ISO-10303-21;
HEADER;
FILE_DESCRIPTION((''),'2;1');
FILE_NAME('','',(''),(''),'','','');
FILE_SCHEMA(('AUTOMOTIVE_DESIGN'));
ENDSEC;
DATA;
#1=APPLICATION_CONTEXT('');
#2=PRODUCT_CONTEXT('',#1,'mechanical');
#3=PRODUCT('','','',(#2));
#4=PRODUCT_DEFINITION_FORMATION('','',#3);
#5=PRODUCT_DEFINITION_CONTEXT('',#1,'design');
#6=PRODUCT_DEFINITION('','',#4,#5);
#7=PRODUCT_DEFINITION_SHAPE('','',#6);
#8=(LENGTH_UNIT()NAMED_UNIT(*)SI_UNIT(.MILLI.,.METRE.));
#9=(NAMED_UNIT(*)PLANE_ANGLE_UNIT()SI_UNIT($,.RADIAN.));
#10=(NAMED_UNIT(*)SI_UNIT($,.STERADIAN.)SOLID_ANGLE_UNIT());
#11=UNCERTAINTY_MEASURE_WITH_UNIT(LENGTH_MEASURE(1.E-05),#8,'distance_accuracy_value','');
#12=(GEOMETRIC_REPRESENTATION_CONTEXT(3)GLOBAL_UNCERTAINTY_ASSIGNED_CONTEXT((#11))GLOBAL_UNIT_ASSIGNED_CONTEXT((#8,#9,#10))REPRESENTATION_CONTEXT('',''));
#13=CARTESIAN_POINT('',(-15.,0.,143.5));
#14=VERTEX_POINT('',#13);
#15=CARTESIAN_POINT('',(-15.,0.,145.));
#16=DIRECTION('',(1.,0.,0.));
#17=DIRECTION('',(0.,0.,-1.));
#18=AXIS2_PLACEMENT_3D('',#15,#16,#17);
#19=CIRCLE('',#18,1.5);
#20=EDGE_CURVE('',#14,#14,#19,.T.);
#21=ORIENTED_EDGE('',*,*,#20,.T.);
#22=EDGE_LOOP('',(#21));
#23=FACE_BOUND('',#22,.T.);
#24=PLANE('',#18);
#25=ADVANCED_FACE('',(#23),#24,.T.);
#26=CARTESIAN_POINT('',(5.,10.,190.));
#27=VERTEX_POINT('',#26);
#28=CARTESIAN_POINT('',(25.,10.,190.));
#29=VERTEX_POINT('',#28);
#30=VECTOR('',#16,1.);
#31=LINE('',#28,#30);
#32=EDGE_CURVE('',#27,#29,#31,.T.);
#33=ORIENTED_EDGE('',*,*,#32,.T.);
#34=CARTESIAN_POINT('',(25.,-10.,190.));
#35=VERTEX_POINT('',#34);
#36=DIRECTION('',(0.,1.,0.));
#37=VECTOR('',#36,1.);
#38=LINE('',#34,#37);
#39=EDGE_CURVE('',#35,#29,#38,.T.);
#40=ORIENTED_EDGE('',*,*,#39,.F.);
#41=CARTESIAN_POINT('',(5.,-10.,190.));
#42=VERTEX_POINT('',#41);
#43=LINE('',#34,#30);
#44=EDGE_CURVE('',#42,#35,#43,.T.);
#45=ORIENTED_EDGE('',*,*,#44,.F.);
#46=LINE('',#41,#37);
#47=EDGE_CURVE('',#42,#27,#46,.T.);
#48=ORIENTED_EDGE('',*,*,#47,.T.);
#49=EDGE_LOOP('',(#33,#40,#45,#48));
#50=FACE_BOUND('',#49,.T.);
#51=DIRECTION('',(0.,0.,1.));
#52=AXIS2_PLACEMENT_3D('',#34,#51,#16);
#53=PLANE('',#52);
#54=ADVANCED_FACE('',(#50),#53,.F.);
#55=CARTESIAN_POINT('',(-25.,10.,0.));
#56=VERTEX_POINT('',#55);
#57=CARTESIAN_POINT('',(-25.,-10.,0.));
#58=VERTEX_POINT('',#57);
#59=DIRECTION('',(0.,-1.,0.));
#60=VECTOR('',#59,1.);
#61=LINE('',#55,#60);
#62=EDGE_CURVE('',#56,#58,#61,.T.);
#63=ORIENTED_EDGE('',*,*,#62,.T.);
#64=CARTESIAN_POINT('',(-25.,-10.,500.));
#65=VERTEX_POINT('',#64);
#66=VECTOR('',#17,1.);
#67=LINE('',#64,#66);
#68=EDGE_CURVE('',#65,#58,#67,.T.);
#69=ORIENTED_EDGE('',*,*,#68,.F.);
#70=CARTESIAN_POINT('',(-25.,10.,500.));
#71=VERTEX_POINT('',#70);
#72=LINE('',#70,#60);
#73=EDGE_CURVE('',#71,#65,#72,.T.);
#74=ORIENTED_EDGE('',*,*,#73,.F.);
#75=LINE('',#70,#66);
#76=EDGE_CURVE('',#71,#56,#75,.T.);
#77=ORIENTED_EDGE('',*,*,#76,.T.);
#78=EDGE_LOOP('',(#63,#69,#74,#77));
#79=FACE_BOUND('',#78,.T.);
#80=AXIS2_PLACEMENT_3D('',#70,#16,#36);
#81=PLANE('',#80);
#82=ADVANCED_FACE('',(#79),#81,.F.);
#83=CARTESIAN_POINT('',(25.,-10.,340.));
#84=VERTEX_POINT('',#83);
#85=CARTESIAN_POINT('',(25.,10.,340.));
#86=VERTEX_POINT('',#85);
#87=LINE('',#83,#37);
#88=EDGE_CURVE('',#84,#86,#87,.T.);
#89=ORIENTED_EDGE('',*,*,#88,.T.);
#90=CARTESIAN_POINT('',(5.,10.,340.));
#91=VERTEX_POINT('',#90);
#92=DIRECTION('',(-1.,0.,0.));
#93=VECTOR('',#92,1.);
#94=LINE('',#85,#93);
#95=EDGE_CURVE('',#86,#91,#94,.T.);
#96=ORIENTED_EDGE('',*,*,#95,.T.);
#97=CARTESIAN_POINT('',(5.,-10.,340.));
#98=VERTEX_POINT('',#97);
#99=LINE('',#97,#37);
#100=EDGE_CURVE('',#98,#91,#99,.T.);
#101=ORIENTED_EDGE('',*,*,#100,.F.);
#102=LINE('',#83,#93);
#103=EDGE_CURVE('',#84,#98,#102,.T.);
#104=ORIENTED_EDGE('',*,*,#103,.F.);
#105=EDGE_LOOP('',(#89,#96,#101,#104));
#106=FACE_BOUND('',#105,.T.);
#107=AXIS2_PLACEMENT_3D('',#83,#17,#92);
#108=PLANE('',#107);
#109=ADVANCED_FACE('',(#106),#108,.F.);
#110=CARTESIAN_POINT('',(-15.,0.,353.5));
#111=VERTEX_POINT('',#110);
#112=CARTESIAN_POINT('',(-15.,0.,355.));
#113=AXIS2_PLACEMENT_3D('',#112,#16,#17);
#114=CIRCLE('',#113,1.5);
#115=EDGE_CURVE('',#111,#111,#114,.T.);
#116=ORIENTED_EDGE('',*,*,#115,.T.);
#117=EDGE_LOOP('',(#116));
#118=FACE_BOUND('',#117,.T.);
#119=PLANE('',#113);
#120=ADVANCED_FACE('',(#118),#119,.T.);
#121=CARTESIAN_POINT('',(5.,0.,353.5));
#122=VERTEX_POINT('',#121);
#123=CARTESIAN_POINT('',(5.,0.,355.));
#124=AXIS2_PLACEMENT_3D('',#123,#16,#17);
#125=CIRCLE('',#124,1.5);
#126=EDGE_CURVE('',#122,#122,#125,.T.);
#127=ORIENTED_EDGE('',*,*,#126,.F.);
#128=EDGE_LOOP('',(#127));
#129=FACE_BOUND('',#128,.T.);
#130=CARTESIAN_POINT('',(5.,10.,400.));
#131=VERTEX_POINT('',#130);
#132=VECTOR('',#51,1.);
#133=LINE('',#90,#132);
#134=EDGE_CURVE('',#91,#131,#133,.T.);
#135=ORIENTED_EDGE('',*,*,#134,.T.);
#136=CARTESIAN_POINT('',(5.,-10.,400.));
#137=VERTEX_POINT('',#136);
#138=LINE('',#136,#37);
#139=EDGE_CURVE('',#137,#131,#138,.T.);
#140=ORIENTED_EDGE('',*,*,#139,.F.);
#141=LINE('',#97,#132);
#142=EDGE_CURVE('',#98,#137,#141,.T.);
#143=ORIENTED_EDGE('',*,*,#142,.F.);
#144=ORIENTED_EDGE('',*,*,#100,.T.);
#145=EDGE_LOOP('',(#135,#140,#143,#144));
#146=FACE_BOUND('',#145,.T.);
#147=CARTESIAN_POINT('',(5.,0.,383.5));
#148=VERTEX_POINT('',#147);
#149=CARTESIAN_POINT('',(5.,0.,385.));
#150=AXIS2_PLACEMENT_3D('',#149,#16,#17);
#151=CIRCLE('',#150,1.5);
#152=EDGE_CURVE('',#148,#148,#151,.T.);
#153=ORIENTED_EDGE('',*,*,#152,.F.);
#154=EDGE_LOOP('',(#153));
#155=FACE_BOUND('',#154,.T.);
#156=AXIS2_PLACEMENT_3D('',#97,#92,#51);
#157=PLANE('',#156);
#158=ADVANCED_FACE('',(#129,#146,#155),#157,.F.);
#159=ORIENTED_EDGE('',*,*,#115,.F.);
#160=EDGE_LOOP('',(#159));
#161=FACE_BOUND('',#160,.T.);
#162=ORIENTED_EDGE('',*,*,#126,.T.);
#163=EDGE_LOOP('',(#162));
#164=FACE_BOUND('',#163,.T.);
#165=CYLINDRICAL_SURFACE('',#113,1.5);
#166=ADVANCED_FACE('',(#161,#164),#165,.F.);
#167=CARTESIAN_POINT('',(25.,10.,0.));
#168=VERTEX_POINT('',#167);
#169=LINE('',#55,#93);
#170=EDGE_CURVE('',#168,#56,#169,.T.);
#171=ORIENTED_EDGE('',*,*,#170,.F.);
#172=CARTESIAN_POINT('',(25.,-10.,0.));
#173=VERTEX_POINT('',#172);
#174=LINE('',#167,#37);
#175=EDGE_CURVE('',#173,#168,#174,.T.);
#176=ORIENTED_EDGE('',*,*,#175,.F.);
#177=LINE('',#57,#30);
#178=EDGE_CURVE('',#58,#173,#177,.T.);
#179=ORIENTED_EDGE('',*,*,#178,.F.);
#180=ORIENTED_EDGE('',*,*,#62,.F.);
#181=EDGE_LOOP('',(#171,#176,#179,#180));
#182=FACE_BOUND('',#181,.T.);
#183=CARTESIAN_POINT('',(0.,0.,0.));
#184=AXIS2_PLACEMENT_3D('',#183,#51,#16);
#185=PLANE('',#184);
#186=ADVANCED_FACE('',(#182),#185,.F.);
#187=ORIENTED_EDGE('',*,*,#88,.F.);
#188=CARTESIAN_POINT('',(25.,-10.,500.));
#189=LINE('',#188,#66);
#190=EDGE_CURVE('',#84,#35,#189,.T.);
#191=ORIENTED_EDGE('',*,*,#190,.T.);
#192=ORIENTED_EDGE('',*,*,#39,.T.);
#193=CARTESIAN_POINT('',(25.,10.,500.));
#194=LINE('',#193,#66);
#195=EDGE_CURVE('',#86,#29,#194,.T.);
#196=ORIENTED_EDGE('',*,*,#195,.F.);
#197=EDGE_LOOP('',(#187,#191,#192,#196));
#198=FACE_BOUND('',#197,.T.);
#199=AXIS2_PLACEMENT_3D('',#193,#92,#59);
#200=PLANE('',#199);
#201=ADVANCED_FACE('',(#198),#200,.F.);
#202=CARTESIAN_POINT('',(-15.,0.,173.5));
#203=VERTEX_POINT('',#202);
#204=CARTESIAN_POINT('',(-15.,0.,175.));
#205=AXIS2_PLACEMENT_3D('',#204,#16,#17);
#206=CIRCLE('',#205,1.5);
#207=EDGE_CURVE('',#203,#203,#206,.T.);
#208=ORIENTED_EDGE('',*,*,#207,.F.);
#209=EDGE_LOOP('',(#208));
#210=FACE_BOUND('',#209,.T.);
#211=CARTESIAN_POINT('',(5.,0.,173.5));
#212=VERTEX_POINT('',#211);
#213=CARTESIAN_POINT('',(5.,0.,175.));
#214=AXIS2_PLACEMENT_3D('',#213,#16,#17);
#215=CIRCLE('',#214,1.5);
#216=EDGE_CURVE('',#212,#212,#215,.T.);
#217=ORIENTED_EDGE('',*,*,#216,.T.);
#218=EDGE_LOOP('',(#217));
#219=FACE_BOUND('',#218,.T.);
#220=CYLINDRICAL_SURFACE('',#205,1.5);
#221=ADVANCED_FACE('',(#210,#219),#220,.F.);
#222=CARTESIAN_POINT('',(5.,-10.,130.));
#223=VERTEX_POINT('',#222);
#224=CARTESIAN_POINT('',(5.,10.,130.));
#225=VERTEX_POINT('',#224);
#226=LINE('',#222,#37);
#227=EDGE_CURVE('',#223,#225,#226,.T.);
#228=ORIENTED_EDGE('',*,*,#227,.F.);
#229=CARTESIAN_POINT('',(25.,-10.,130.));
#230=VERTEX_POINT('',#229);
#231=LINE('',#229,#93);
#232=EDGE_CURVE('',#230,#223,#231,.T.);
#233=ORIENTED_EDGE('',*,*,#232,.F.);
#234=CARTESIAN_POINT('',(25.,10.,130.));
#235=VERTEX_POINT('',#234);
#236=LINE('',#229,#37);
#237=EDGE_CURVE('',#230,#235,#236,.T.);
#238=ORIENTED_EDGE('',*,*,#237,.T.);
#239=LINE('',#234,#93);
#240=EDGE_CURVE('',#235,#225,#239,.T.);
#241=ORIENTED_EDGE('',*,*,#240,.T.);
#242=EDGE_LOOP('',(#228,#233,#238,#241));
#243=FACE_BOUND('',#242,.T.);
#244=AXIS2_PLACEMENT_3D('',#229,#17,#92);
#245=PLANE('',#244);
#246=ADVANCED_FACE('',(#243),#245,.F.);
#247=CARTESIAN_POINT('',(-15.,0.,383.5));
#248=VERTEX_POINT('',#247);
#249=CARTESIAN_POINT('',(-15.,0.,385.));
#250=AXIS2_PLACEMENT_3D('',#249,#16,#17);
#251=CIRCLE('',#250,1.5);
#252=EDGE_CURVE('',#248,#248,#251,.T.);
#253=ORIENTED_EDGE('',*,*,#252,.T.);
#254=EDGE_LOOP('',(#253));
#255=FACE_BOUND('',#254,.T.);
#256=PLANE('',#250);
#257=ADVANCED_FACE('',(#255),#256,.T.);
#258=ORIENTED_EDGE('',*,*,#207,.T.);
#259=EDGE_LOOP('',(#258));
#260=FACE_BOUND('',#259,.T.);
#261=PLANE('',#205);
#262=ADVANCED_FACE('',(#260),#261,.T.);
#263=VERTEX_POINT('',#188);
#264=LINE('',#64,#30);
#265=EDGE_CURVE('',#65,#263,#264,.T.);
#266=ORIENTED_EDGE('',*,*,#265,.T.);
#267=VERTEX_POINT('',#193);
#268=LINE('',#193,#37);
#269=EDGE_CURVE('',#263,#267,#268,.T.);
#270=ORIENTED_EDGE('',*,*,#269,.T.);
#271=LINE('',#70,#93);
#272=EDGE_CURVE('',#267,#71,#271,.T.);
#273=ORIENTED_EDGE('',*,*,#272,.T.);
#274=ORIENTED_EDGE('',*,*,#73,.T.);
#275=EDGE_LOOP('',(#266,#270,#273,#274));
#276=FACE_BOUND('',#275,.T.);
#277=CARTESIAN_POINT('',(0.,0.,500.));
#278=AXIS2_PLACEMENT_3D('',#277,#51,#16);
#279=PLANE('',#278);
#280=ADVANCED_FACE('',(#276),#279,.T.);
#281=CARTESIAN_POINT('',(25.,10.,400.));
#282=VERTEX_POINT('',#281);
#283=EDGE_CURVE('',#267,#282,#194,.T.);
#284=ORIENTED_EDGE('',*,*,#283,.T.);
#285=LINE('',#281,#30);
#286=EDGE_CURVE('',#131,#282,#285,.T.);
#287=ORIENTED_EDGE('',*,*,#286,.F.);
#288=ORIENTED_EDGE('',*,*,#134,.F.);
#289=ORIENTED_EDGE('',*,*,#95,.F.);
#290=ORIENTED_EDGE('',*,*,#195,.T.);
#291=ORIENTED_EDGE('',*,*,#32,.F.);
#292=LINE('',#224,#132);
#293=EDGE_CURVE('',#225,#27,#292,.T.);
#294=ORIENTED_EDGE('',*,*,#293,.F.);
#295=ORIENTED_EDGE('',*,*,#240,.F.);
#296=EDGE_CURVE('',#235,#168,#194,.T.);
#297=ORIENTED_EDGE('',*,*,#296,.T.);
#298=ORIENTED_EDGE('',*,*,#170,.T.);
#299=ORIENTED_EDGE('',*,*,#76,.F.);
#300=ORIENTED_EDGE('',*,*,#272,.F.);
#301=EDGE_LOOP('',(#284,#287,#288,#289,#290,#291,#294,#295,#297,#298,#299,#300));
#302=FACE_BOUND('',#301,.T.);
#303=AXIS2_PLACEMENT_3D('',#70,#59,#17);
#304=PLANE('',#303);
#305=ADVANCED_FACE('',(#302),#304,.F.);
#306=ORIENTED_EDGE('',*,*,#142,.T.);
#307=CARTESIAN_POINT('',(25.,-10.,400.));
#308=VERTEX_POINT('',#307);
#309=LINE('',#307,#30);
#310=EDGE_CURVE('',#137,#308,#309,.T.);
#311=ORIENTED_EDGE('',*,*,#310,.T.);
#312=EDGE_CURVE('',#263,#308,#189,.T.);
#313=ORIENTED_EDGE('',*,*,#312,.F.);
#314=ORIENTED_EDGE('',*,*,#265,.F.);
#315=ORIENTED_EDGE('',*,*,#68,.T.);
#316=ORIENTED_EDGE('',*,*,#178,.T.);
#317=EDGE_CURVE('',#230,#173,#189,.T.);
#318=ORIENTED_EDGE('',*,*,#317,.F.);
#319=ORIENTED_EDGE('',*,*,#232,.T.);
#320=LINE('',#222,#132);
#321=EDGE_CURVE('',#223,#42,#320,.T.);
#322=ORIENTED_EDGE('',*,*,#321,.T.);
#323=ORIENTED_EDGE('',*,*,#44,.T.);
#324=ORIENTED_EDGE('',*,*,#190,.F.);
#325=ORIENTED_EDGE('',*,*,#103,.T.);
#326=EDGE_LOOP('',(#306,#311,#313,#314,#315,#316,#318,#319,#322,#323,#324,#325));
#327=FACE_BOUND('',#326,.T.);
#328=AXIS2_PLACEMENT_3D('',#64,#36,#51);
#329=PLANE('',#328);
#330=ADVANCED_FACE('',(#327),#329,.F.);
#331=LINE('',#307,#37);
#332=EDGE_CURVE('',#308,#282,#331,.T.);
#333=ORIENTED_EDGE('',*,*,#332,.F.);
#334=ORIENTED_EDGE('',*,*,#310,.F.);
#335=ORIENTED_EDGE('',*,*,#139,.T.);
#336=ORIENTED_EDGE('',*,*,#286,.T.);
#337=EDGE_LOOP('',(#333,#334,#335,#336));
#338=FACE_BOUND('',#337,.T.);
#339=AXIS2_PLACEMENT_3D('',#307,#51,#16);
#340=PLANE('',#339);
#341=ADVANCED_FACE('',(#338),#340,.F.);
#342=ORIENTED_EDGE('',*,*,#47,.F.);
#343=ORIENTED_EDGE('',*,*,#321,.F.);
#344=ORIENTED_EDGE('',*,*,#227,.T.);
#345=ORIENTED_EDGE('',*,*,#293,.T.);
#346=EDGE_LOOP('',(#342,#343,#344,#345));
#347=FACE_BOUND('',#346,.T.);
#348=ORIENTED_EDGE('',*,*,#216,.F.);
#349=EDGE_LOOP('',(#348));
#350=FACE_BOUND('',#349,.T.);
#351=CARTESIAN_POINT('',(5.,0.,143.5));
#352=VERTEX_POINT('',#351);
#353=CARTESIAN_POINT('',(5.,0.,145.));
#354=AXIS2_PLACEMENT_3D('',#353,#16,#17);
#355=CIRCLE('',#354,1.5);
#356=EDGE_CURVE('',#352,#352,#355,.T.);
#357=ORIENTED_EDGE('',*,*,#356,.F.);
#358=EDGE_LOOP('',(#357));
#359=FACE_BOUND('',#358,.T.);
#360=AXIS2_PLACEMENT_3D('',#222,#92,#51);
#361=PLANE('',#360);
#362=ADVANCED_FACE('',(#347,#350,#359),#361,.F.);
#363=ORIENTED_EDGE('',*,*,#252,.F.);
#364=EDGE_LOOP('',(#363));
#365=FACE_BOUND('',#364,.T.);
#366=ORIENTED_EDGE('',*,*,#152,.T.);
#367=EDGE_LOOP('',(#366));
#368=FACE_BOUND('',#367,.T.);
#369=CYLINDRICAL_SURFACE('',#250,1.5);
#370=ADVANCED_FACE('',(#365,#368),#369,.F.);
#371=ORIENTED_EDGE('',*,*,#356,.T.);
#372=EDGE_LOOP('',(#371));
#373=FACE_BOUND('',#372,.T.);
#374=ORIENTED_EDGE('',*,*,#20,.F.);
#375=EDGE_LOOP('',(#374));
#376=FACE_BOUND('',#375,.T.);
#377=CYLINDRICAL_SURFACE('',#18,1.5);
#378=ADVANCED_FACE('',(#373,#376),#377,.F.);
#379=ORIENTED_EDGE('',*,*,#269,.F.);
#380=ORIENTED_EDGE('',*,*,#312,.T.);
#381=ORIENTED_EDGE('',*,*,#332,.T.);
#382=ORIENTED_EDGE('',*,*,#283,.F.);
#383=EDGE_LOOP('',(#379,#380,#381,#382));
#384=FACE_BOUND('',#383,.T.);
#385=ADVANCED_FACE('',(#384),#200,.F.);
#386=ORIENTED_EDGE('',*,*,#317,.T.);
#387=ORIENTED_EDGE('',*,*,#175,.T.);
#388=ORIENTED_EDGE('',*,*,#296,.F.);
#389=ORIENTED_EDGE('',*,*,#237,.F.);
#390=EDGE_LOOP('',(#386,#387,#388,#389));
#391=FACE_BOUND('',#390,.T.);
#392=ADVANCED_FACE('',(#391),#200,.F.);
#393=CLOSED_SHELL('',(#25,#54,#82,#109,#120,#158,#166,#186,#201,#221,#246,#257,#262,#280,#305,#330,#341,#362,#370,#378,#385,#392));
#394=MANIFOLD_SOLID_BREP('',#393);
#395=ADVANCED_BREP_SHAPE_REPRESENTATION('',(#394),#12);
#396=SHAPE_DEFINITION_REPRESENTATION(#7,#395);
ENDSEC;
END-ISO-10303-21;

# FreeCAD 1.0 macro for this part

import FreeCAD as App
import Part
import Sketcher
from FreeCAD import Vector
Q = App.Units.Quantity


def add_polygon(sketch, points):
    """Adds a closed chain of lines whose ends are joined by coincident constraints."""
    first, n = sketch.GeometryCount, len(points)
    for a, b in zip(points, points[1:] + points[:1]):
        sketch.addGeometry(Part.LineSegment(App.Vector(*a, 0), App.Vector(*b, 0)), False)
    for i in range(n):
        sketch.addConstraint(Sketcher.Constraint("Coincident", first + i, 2, first + (i + 1) % n, 1))

doc = App.newDocument("Part")
body = doc.addObject("PartDesign::Body", "Body")

sketch1 = body.newObject("Sketcher::SketchObject", "Sketch")
sketch1.AttachmentSupport = (doc.getObject("XY_Plane"), [""])
sketch1.MapMode = "FlatFace"
add_polygon(sketch1, [(-25, 10), (-25, -10), (25, -10), (25, 10)])
sketch1.addConstraint(Sketcher.Constraint("Vertical", 0))
sketch1.addConstraint(Sketcher.Constraint("Horizontal", 1))
sketch1.addConstraint(Sketcher.Constraint("Vertical", 2))
sketch1.addConstraint(Sketcher.Constraint("Horizontal", 3))
sketch1.addConstraint(Sketcher.Constraint("Symmetric", 0, 2, 2, 2, -1, 1))
sketch1.addConstraint(Sketcher.Constraint("DistanceX", 1, 1, 1, 2, Q("50 mm")))
sketch1.addConstraint(Sketcher.Constraint("DistanceY", 0, 2, 0, 1, Q("20 mm")))
pad1 = body.newObject("PartDesign::Pad", "Pad")
pad1.Profile = sketch1
pad1.Length = 500

sketch2 = body.newObject("Sketcher::SketchObject", "Sketch001")
sketch2.AttachmentSupport = (doc.getObject("XZ_Plane"), [""])
sketch2.MapMode = "FlatFace"
sketch2.AttachmentOffset = App.Placement(Vector(0, 0, -10), App.Rotation())
add_polygon(sketch2, [(5, 340), (5, 400), (25, 400), (25, 340)])
add_polygon(sketch2, [(5, 130), (5, 190), (25, 190), (25, 130)])
sketch2.addConstraint(Sketcher.Constraint("Vertical", 0))
sketch2.addConstraint(Sketcher.Constraint("Horizontal", 1))
sketch2.addConstraint(Sketcher.Constraint("Vertical", 2))
sketch2.addConstraint(Sketcher.Constraint("Horizontal", 3))
sketch2.addConstraint(Sketcher.Constraint("Vertical", 4))
sketch2.addConstraint(Sketcher.Constraint("Horizontal", 5))
sketch2.addConstraint(Sketcher.Constraint("Vertical", 6))
sketch2.addConstraint(Sketcher.Constraint("Horizontal", 7))
sketch2.addConstraint(Sketcher.Constraint("Vertical", 3, 2, 4, 2))
sketch2.addConstraint(Sketcher.Constraint("Vertical", 2, 2, 5, 2))
sketch2.addConstraint(Sketcher.Constraint("Equal", 2, 4))
sketch2.addConstraint(Sketcher.Constraint("DistanceX", 1, 1, 1, 2, Q("20 mm")))
sketch2.addConstraint(Sketcher.Constraint("DistanceY", 0, 1, 0, 2, Q("60 mm")))
sketch2.addConstraint(Sketcher.Constraint("DistanceX", -1, 1, 0, 2, Q("5 mm")))
sketch2.addConstraint(Sketcher.Constraint("DistanceY", -1, 1, 0, 2, Q("400 mm")))
sketch2.addConstraint(Sketcher.Constraint("DistanceY", -1, 1, 4, 2, Q("190 mm")))
pocket1 = body.newObject("PartDesign::Pocket", "Pocket")
pocket1.Profile = sketch2
pocket1.Type = "ThroughAll"
pocket1.Reversed = True

sketch3 = body.newObject("Sketcher::SketchObject", "Sketch002")
sketch3.AttachmentSupport = (doc.getObject("YZ_Plane"), [""])
sketch3.MapMode = "FlatFace"
sketch3.AttachmentOffset = App.Placement(Vector(0, 0, 5), App.Rotation())
sketch3.addGeometry(Part.Circle(Vector(0, 385, 0), Vector(0, 0, 1), 1.5), False)
sketch3.addGeometry(Part.Circle(Vector(0, 355, 0), Vector(0, 0, 1), 1.5), False)
sketch3.addGeometry(Part.Circle(Vector(0, 175, 0), Vector(0, 0, 1), 1.5), False)
sketch3.addGeometry(Part.Circle(Vector(0, 145, 0), Vector(0, 0, 1), 1.5), False)
sketch3.addConstraint(Sketcher.Constraint("Equal", 0, 1))
sketch3.addConstraint(Sketcher.Constraint("Equal", 1, 2))
sketch3.addConstraint(Sketcher.Constraint("Equal", 2, 3))
sketch3.addConstraint(Sketcher.Constraint("PointOnObject", 0, 3, -2))
sketch3.addConstraint(Sketcher.Constraint("PointOnObject", 1, 3, -2))
sketch3.addConstraint(Sketcher.Constraint("PointOnObject", 2, 3, -2))
sketch3.addConstraint(Sketcher.Constraint("PointOnObject", 3, 3, -2))
sketch3.addConstraint(Sketcher.Constraint("Diameter", 0, Q("3 mm")))
sketch3.addConstraint(Sketcher.Constraint("DistanceY", -1, 1, 0, 3, Q("385 mm")))
sketch3.addConstraint(Sketcher.Constraint("DistanceY", -1, 1, 1, 3, Q("355 mm")))
sketch3.addConstraint(Sketcher.Constraint("DistanceY", -1, 1, 2, 3, Q("175 mm")))
sketch3.addConstraint(Sketcher.Constraint("DistanceY", -1, 1, 3, 3, Q("145 mm")))
pocket2 = body.newObject("PartDesign::Pocket", "Pocket001")
pocket2.Profile = sketch3
pocket2.Length = 20

doc.recompute()
